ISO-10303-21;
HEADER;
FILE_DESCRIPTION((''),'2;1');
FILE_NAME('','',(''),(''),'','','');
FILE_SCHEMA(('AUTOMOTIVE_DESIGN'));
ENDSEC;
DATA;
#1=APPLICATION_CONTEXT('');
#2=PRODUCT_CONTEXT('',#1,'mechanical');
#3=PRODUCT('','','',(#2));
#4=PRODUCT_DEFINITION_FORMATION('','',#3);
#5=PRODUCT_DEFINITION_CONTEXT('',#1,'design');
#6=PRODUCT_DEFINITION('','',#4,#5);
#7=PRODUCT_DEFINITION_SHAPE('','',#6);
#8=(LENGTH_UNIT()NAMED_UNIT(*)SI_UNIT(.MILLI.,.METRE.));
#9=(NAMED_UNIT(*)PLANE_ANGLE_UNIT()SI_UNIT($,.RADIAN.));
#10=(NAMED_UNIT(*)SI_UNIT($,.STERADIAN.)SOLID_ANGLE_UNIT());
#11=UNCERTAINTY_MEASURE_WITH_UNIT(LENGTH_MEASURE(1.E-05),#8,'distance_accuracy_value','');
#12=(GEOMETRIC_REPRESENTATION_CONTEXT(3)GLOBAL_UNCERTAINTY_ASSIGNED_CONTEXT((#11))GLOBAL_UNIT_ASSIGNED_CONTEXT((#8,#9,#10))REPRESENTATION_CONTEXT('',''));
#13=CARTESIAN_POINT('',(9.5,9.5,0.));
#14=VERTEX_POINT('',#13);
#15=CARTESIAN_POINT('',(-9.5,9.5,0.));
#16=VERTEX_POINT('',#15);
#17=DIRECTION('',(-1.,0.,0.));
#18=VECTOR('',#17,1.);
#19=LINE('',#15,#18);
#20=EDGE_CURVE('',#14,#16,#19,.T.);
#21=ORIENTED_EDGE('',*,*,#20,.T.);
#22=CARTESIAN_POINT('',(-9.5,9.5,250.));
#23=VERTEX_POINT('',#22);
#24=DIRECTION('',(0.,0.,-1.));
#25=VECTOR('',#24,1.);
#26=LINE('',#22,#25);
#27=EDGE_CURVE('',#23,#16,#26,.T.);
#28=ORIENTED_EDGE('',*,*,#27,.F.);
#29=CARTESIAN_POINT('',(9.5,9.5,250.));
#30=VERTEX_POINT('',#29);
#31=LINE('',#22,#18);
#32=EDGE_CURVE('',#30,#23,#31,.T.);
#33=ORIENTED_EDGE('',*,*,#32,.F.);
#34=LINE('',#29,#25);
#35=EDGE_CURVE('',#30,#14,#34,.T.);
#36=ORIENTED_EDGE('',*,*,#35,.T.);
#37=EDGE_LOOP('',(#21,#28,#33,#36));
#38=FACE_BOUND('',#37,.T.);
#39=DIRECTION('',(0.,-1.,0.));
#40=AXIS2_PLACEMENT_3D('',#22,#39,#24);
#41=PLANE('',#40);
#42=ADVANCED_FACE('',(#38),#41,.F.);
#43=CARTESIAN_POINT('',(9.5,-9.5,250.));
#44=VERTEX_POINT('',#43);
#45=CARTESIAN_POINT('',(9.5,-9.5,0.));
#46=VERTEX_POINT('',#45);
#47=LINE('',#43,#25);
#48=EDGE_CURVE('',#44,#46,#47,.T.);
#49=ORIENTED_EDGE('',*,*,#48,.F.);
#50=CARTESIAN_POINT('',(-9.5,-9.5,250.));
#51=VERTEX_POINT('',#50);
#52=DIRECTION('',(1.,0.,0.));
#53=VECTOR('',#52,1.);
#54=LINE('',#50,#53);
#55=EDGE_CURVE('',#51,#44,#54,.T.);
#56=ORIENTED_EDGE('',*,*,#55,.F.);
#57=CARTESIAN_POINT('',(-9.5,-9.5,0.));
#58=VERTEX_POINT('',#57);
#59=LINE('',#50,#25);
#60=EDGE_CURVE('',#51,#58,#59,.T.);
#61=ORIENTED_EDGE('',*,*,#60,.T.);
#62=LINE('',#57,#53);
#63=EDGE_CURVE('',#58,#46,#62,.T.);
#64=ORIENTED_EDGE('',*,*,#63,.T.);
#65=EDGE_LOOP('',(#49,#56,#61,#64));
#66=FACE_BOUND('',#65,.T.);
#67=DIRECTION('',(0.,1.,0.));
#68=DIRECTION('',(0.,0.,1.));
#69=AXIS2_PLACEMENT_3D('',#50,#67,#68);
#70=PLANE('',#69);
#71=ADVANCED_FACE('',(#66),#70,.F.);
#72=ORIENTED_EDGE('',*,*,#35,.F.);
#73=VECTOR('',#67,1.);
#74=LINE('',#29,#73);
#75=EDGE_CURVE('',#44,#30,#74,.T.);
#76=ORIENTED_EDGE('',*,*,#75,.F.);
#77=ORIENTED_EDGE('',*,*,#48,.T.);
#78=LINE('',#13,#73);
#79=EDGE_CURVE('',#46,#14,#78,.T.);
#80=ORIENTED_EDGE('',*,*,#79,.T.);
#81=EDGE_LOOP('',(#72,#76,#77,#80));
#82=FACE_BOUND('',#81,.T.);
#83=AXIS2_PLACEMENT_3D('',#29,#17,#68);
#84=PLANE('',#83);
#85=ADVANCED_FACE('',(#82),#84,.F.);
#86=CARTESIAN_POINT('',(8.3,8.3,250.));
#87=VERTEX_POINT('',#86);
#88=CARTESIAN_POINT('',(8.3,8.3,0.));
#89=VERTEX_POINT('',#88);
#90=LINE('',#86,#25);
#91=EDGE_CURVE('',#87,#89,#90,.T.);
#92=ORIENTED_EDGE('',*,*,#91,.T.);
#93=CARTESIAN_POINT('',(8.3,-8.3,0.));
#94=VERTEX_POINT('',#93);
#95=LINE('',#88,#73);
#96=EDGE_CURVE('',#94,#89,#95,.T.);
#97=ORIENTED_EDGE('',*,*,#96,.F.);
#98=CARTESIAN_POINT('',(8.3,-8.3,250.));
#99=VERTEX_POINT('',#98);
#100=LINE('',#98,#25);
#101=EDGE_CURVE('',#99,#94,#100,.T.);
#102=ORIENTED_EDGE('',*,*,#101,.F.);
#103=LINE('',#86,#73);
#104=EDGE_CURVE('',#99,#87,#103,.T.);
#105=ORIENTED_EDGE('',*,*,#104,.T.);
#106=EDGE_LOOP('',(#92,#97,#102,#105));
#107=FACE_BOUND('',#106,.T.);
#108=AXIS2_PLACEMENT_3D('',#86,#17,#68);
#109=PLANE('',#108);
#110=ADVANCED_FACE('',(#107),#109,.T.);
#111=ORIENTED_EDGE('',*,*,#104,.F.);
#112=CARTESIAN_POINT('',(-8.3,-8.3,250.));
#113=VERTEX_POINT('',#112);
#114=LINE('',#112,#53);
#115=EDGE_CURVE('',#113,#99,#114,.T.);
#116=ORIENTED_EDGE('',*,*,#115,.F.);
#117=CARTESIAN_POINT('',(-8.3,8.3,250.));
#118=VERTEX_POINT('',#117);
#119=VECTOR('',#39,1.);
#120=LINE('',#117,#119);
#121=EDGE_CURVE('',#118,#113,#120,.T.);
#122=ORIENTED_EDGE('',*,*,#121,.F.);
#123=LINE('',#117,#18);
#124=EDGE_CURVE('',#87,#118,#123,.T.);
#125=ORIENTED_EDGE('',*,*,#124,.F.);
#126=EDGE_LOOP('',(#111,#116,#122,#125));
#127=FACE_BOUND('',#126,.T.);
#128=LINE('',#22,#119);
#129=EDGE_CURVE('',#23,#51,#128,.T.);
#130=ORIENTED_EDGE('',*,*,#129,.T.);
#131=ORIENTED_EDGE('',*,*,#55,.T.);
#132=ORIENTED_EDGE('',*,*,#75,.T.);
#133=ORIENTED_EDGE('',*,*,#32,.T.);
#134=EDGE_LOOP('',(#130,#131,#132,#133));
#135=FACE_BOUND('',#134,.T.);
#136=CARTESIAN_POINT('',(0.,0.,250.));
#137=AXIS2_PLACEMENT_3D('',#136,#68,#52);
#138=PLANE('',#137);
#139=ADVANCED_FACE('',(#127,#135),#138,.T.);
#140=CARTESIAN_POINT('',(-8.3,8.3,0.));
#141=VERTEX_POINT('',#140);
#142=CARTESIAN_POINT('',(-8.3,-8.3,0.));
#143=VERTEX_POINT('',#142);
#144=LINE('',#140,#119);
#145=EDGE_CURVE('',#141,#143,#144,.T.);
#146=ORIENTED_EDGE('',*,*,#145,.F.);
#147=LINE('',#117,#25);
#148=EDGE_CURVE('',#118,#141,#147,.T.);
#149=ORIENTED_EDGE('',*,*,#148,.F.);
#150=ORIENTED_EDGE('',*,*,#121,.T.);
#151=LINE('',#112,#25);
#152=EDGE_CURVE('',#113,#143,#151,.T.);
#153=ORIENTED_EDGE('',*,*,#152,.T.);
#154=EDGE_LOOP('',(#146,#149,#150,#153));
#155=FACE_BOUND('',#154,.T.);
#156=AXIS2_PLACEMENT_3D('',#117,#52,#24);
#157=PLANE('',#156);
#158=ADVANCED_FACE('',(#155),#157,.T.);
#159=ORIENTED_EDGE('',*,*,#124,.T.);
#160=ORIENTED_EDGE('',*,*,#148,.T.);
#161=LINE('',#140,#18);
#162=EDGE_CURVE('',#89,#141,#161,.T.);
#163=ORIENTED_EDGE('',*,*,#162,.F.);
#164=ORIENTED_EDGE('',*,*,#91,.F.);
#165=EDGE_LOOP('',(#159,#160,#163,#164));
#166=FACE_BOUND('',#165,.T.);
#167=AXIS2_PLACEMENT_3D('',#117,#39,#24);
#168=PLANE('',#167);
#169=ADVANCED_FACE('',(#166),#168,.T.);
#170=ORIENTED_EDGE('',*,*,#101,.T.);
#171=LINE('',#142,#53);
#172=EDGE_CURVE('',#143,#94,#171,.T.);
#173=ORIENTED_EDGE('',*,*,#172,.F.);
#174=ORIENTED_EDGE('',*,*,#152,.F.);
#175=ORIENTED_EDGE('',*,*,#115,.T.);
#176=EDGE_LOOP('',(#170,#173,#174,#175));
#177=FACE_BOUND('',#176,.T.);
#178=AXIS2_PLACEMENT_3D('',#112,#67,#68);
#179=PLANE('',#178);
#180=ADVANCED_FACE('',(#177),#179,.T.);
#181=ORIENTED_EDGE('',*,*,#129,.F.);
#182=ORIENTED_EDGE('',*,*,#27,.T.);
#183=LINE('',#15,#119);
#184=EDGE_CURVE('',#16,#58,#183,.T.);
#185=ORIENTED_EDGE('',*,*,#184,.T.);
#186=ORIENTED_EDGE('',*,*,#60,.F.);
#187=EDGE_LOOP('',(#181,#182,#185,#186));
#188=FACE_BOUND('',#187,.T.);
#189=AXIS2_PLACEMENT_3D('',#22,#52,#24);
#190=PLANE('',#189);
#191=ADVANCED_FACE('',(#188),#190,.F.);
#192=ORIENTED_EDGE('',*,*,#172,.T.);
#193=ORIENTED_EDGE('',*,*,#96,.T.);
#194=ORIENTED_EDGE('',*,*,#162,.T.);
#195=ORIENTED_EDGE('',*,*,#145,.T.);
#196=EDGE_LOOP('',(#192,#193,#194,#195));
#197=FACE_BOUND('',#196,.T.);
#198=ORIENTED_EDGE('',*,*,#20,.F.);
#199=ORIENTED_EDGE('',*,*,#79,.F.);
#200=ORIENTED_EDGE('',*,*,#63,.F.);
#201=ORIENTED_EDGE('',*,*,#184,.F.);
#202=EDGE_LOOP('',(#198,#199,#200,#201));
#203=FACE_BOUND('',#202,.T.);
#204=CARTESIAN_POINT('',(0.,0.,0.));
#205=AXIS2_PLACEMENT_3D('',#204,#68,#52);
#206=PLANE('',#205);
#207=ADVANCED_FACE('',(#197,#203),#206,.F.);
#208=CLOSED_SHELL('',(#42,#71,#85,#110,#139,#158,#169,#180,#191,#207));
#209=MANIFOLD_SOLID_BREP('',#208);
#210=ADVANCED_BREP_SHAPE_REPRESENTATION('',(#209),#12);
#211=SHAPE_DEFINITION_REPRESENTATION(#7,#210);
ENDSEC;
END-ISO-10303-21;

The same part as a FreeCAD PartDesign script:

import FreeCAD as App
import Part
import Sketcher
Q = App.Units.Quantity

doc = App.newDocument("Part")
body = doc.addObject("PartDesign::Body", "Body")

sketch1 = body.newObject("Sketcher::SketchObject", "Sketch")
sketch1.AttachmentSupport = (doc.getObject("XY_Plane"), [""])
sketch1.MapMode = "FlatFace"
sketch1.addGeometry([
    Part.LineSegment(App.Vector(-10, 10, 0), App.Vector(-10, -10, 0)),
    Part.LineSegment(App.Vector(-10, -10, 0), App.Vector(10, -10, 0)),
    Part.LineSegment(App.Vector(10, -10, 0), App.Vector(10, 10, 0)),
    Part.LineSegment(App.Vector(10, 10, 0), App.Vector(-10, 10, 0)),
    Part.LineSegment(App.Vector(8, -8, 0), App.Vector(-8, -8, 0)),
    Part.LineSegment(App.Vector(-8, -8, 0), App.Vector(-8, 8, 0)),
    Part.LineSegment(App.Vector(-8, 8, 0), App.Vector(8, 8, 0)),
    Part.LineSegment(App.Vector(8, 8, 0), App.Vector(8, -8, 0)),
], False)
sketch1.addConstraint([
    Sketcher.Constraint("Coincident", 0, 2, 1, 1),
    Sketcher.Constraint("Coincident", 1, 2, 2, 1),
    Sketcher.Constraint("Coincident", 2, 2, 3, 1),
    Sketcher.Constraint("Coincident", 3, 2, 0, 1),
    Sketcher.Constraint("Coincident", 4, 2, 5, 1),
    Sketcher.Constraint("Coincident", 5, 2, 6, 1),
    Sketcher.Constraint("Coincident", 6, 2, 7, 1),
    Sketcher.Constraint("Coincident", 7, 2, 4, 1),
    Sketcher.Constraint("Vertical", 0),
    Sketcher.Constraint("Horizontal", 1),
    Sketcher.Constraint("Vertical", 2),
    Sketcher.Constraint("Horizontal", 3),
    Sketcher.Constraint("Horizontal", 4),
    Sketcher.Constraint("Vertical", 5),
    Sketcher.Constraint("Horizontal", 6),
    Sketcher.Constraint("Vertical", 7),
    Sketcher.Constraint("Symmetric", 0, 2, 2, 2, -1, 1),
    Sketcher.Constraint("Symmetric", 4, 2, 6, 2, -1, 1),
    Sketcher.Constraint("Equal", 3, 0),
    Sketcher.Constraint("Equal", 6, 5),
    Sketcher.Constraint("DistanceX", 1, 1, 1, 2, Q("19 mm")),
    Sketcher.Constraint("DistanceX", 4, 2, 4, 1, Q("16.6 mm")),
])
pad1 = body.newObject("PartDesign::Pad", "Pad")
pad1.Profile = sketch1
pad1.Length = 250

doc.recompute()
